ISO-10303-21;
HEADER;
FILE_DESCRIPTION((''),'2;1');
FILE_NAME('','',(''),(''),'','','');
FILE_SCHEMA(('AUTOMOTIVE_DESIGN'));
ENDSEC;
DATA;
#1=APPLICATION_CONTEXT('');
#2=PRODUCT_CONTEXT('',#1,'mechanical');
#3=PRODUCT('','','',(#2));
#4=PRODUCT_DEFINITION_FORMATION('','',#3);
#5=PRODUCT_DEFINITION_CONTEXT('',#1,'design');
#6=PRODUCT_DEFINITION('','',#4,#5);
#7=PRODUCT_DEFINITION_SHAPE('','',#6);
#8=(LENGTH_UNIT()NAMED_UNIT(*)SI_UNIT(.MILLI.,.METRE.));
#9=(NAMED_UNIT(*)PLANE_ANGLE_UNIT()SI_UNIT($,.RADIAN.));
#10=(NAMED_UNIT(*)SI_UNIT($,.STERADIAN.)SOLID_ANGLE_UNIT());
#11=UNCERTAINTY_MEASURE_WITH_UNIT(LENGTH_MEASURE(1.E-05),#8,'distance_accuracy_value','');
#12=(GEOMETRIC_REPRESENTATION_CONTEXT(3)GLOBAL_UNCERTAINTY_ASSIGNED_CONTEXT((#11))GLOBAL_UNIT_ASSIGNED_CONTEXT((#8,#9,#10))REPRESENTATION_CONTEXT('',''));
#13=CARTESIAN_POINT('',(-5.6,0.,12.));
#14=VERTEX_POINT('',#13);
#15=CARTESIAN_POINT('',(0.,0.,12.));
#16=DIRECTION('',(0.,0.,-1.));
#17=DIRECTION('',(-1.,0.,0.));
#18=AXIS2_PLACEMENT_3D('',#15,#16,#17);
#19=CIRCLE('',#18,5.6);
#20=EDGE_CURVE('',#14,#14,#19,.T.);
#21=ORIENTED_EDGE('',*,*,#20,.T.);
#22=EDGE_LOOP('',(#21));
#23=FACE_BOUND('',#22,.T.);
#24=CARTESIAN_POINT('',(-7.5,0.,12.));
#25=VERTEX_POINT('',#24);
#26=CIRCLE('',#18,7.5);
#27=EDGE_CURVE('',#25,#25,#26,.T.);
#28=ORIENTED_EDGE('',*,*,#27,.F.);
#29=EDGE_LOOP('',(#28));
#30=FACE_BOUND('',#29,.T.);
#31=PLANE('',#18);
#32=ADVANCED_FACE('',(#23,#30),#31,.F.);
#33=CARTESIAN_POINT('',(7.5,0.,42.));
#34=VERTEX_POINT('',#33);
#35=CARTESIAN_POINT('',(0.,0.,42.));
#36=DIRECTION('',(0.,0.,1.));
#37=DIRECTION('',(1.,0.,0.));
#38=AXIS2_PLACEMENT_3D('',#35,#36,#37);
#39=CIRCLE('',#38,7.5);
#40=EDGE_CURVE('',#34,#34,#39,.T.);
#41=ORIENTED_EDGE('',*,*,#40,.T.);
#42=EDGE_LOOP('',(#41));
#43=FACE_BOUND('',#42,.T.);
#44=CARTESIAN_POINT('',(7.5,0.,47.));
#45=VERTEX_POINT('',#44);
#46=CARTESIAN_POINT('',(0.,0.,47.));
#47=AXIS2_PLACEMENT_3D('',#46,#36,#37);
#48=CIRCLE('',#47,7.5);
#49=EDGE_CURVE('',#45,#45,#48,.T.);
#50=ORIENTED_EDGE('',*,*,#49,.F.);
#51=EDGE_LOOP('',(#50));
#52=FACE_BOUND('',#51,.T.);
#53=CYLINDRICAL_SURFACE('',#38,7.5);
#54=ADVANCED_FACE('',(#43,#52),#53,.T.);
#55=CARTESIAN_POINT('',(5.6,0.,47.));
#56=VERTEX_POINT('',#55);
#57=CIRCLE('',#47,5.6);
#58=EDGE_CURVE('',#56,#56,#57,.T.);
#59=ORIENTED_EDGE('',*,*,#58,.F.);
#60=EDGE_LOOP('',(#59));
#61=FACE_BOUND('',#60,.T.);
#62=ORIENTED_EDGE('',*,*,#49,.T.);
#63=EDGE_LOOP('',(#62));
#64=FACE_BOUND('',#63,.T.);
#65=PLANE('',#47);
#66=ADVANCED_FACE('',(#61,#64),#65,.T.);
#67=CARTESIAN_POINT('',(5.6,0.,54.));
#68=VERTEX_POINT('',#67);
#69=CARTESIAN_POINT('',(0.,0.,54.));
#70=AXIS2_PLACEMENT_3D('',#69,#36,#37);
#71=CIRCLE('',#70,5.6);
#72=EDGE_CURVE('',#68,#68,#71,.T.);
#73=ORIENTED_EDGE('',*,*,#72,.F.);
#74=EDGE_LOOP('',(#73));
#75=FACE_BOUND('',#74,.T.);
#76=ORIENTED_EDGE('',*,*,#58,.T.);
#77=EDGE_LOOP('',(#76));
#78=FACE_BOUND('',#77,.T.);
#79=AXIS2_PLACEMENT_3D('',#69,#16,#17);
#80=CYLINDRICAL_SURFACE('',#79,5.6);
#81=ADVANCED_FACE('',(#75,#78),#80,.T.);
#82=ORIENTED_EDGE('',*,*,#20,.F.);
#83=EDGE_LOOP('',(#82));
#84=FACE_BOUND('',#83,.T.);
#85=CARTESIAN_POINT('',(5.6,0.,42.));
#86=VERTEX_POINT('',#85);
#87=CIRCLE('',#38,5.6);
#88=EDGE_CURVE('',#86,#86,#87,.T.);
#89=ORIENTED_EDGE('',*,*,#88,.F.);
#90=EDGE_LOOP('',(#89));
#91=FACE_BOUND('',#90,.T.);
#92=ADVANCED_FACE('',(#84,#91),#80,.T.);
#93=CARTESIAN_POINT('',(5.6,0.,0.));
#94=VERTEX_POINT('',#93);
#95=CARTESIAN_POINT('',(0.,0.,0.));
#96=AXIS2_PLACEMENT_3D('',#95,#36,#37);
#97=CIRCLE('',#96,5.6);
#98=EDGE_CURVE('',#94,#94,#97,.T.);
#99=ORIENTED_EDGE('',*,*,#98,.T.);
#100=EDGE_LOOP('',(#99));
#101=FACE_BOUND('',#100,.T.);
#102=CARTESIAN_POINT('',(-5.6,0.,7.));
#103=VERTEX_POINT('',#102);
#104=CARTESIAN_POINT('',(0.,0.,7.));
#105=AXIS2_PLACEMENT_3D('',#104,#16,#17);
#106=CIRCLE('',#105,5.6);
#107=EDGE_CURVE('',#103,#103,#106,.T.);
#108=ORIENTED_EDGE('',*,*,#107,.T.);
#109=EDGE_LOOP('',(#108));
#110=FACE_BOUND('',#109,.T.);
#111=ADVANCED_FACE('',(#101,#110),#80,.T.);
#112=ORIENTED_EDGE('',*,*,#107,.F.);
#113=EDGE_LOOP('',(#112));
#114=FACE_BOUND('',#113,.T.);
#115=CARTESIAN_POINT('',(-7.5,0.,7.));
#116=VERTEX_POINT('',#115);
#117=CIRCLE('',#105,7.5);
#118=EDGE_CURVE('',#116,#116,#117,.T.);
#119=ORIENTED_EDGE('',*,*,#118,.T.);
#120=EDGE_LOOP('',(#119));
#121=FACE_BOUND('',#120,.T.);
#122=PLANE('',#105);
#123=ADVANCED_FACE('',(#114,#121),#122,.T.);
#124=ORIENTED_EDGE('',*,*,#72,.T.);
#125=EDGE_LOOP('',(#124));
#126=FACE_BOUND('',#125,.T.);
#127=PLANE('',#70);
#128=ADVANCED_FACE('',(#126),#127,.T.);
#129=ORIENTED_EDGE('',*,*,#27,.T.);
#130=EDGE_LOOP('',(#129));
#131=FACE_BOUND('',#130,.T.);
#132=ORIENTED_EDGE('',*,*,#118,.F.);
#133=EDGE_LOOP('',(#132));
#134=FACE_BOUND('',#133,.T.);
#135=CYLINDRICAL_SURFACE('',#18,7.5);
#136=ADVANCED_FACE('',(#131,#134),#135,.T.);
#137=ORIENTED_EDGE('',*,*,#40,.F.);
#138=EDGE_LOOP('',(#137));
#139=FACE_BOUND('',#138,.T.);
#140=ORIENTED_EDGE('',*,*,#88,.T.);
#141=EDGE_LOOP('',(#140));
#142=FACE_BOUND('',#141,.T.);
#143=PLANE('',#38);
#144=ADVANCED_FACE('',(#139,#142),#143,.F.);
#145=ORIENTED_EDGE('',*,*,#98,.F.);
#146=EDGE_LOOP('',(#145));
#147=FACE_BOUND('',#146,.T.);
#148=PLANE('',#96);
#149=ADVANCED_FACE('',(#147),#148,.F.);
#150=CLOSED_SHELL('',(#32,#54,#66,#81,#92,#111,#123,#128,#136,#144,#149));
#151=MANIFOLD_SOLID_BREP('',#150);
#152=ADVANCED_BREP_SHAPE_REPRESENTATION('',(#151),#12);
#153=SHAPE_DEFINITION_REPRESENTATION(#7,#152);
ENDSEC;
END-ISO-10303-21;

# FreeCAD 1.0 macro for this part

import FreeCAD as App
import Part
import Sketcher

V = App.Vector
Q = App.Units.Quantity

doc = App.newDocument("Part")
body = doc.addObject("PartDesign::Body", "Body")

# Sketch on XY plane
sketch1 = body.newObject("Sketcher::SketchObject", "Sketch")
sketch1.AttachmentSupport = (doc.getObject("XY_Plane"), [""])
sketch1.MapMode = "FlatFace"
sketch1.addGeometry(Part.Circle(V(0, 0, 0), V(0, 0, 1), 6), False)
sketch1.addConstraint(Sketcher.Constraint("Coincident", 0, 3, -1, 1))
sketch1.addConstraint(Sketcher.Constraint("Diameter", 0, Q("11.2 mm")))
pad1 = body.newObject("PartDesign::Pad", "Pad")
pad1.Profile = sketch1
pad1.Length = 54

# Sketch on XY plane
sketch2 = body.newObject("Sketcher::SketchObject", "Sketch001")
sketch2.AttachmentSupport = (doc.getObject("XY_Plane"), [""])
sketch2.MapMode = "FlatFace"
sketch2.AttachmentOffset = App.Placement(V(0, 0, 47), App.Rotation())
sketch2.addGeometry(Part.Circle(V(0, 0, 0), V(0, 0, 1), 8), False)
sketch2.addConstraint(Sketcher.Constraint("Coincident", 0, 3, -1, 1))
sketch2.addConstraint(Sketcher.Constraint("Diameter", 0, Q("15 mm")))
pad2 = body.newObject("PartDesign::Pad", "Pad001")
pad2.Profile = sketch2
pad2.Length = 5
pad2.Reversed = True

# Sketch on XY plane
sketch3 = body.newObject("Sketcher::SketchObject", "Sketch002")
sketch3.AttachmentSupport = (doc.getObject("XY_Plane"), [""])
sketch3.MapMode = "FlatFace"
sketch3.AttachmentOffset = App.Placement(V(0, 0, 7), App.Rotation())
sketch3.addGeometry(Part.Circle(V(0, 0, 0), V(0, 0, 1), 8), False)
sketch3.addConstraint(Sketcher.Constraint("Coincident", 0, 3, -1, 1))
sketch3.addConstraint(Sketcher.Constraint("Diameter", 0, Q("15 mm")))
pad3 = body.newObject("PartDesign::Pad", "Pad002")
pad3.Profile = sketch3
pad3.Length = 5

doc.recompute()
